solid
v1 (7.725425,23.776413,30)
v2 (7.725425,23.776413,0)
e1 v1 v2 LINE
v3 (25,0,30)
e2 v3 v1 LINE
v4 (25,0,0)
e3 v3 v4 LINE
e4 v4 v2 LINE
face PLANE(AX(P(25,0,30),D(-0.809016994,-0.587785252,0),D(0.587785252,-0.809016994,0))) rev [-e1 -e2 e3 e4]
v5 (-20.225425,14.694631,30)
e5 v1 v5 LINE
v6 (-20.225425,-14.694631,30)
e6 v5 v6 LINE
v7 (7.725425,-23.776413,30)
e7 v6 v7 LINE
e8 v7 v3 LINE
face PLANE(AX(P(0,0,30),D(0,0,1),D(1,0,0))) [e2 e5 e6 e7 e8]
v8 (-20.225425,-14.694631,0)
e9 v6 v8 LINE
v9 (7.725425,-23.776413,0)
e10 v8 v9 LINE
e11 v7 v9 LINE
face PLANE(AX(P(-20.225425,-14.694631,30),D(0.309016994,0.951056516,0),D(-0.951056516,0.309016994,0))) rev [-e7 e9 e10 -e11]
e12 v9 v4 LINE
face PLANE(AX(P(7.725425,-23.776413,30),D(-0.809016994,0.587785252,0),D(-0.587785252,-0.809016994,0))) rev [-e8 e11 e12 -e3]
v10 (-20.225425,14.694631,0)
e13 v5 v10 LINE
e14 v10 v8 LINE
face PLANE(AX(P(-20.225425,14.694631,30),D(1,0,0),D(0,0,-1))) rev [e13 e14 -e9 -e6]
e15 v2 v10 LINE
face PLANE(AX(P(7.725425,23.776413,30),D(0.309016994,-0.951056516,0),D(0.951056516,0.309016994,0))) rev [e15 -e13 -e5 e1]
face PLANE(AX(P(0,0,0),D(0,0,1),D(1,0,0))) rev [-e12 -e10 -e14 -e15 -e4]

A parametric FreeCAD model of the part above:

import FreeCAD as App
import Part
import Sketcher
from FreeCAD import Vector
Q = App.Units.Quantity

doc = App.newDocument("Part")
body = doc.addObject("PartDesign::Body", "Body")

# Sketch on XY plane
sketch1 = body.newObject("Sketcher::SketchObject", "Sketch")
sketch1.AttachmentSupport = (doc.getObject("XY_Plane"), [""])
sketch1.MapMode = "FlatFace"
sketch1.addGeometry([
    Part.LineSegment(Vector(25, 0, 0), Vector(7.725425, 23.776413, 0)),  # 0
    Part.LineSegment(Vector(7.725425, 23.776413, 0), Vector(-20.225425, 14.694631, 0)),  # 1
    Part.LineSegment(Vector(-20.225425, 14.694631, 0), Vector(-20.225425, -14.694631, 0)),  # 2
    Part.LineSegment(Vector(-20.225425, -14.694631, 0), Vector(7.725425, -23.776413, 0)),  # 3
    Part.LineSegment(Vector(7.725425, -23.776413, 0), Vector(25, 0, 0)),  # 4
], False)
sketch1.addConstraint([
    Sketcher.Constraint("Coincident", 0, 2, 1, 1),
    Sketcher.Constraint("Coincident", 1, 2, 2, 1),
    Sketcher.Constraint("Coincident", 2, 2, 3, 1),
    Sketcher.Constraint("Coincident", 3, 2, 4, 1),
    Sketcher.Constraint("Coincident", 4, 2, 0, 1),
    Sketcher.Constraint("Vertical", 2),
    Sketcher.Constraint("Symmetric", 0, 2, 3, 2, -1),
    Sketcher.Constraint("PointOnObject", 4, 2, -1),
    Sketcher.Constraint("Equal", 0, 1),
    Sketcher.Constraint("Equal", 1, 3),
    Sketcher.Constraint("Angle", 0, Q("126 deg")),
    Sketcher.Constraint("Angle", 1, Q("-162 deg")),
    Sketcher.Constraint("DistanceX", -1, 1, 4, 2, Q("25 mm")),
    Sketcher.Constraint("DistanceY", 2, 2, 2, 1, Q("29.389263 mm")),
])
pad1 = body.newObject("PartDesign::Pad", "Pad")
pad1.Profile = sketch1
pad1.Length = 30

doc.recompute()
